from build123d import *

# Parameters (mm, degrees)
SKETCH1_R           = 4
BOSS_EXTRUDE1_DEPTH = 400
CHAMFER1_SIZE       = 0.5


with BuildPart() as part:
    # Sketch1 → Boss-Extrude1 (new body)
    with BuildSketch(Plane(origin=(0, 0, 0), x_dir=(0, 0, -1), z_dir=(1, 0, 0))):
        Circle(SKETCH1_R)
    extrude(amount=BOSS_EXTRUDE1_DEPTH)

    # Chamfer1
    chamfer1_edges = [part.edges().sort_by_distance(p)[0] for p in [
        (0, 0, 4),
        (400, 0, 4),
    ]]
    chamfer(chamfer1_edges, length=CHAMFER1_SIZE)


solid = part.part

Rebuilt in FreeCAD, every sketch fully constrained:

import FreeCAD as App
import Part
import Sketcher


def edges_at(feature, points):
    """Names of the edges that pass closest to the given points."""
    edges = feature.Shape.Edges
    near = lambda p: min(range(len(edges)), key=lambda i: edges[i].distToShape(Part.Vertex(*p))[0])
    return sorted({f"Edge{near(p) + 1}" for p in points})

doc = App.newDocument("Part")
body = doc.addObject("PartDesign::Body", "Body")

# Sketch on YZ plane
sketch1 = doc.addObject("Sketcher::SketchObject", "Sketch")
body.addObject(sketch1)
sketch1.AttachmentSupport = (doc.YZ_Plane, [""])
sketch1.MapMode = "FlatFace"
sketch1.addGeometry(Part.Circle(App.Vector(0, 0, 0), App.Vector(0, 0, 1), 4), False)
sketch1.addConstraint([
    Sketcher.Constraint("Coincident", 0, 3, -1, 1),
    Sketcher.Constraint("Diameter", 0, 8.0),
])
pad1 = doc.addObject("PartDesign::Pad", "Pad")
body.addObject(pad1)
pad1.Profile = sketch1
pad1.Length = 400
doc.recompute()

chamfer = doc.addObject("PartDesign::Chamfer", "Chamfer")
body.addObject(chamfer)
chamfer.Base = (pad1, edges_at(pad1, [(0, 0, 4), (400, 0, 4)]))
chamfer.Size = 0.5

doc.recompute()
